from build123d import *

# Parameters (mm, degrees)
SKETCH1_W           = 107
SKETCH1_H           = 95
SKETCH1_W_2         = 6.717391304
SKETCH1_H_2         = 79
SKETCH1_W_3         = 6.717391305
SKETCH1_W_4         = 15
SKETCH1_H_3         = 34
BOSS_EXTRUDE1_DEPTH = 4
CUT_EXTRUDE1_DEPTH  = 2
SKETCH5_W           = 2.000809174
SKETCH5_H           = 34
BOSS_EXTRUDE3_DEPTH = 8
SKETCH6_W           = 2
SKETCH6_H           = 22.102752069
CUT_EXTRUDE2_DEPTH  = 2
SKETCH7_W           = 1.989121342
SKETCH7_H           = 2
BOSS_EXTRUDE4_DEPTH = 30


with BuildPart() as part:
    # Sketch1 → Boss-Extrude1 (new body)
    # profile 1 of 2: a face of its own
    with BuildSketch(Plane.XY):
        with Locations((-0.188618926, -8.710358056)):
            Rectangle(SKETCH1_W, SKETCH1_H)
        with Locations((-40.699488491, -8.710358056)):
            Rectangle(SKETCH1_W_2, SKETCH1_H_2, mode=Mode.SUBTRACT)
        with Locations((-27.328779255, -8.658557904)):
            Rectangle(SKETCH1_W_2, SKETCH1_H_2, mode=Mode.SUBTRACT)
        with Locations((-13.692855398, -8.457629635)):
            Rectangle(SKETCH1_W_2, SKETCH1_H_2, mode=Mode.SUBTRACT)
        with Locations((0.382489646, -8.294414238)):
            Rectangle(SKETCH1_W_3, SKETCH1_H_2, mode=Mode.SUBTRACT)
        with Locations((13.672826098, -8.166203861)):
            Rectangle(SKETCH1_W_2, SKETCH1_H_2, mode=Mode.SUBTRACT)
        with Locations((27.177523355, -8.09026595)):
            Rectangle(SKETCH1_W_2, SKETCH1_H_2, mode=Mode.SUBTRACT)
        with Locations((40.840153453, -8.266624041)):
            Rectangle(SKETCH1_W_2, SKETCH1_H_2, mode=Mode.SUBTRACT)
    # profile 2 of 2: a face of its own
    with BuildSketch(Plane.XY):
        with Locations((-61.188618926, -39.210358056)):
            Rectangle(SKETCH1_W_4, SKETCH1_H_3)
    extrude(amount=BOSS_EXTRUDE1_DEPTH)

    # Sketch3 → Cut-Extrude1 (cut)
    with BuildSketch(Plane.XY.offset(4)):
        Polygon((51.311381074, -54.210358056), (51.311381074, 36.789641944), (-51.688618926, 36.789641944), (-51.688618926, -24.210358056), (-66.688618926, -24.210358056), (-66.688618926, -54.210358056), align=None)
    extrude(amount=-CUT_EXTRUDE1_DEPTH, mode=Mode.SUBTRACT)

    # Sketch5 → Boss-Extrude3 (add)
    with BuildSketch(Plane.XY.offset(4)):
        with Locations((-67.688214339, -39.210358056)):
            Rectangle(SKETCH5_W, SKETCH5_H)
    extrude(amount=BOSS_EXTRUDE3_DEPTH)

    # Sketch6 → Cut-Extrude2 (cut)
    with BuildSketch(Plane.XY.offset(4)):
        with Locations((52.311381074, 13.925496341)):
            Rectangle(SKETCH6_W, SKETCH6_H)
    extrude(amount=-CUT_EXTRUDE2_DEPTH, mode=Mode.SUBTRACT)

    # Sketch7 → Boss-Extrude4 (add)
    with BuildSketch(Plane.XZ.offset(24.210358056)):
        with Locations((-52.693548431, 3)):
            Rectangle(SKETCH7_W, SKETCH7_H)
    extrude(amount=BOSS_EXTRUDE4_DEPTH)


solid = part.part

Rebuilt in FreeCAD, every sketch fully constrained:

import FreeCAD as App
import Part
import Sketcher

V = App.Vector
Q = App.Units.Quantity


def add_polygon(sketch, points):
    """Adds a closed chain of lines whose ends are joined by coincident constraints."""
    first, n = sketch.GeometryCount, len(points)
    for a, b in zip(points, points[1:] + points[:1]):
        sketch.addGeometry(Part.LineSegment(App.Vector(*a, 0), App.Vector(*b, 0)), False)
    for i in range(n):
        sketch.addConstraint(Sketcher.Constraint("Coincident", first + i, 2, first + (i + 1) % n, 1))

doc = App.newDocument("Part")
body = doc.addObject("PartDesign::Body", "Body")

# Sketch on XY plane
sketch1 = doc.addObject("Sketcher::SketchObject", "Sketch")
body.addObject(sketch1)
sketch1.AttachmentSupport = (doc.XY_Plane, [""])
sketch1.MapMode = "FlatFace"
add_polygon(sketch1, [(-54, 39), (-54, -22), (-69, -22), (-69, -56), (53, -56), (53, 39)])  # lines 0-5
add_polygon(sketch1, [(-37, -48), (-44, -48), (-44, 31), (-37, 31)])  # lines 6-9
add_polygon(sketch1, [(-24, -48), (-31, -48), (-31, 31), (-24, 31)])  # lines 10-13
add_polygon(sketch1, [(-10, -48), (-17, -48), (-17, 31), (-10, 31)])  # lines 14-17
add_polygon(sketch1, [(4, -48), (-3, -48), (-3, 31), (4, 31)])  # lines 18-21
add_polygon(sketch1, [(17, -48), (10, -48), (10, 31), (17, 31)])  # lines 22-25
add_polygon(sketch1, [(31, -48), (24, -48), (24, 31), (31, 31)])  # lines 26-29
add_polygon(sketch1, [(44, -48), (37, -48), (37, 31), (44, 31)])  # lines 30-33
sketch1.addConstraint([
    Sketcher.Constraint("Vertical", 0),
    Sketcher.Constraint("Horizontal", 1),
    Sketcher.Constraint("Vertical", 2),
    Sketcher.Constraint("Horizontal", 3),
    Sketcher.Constraint("Vertical", 4),
    Sketcher.Constraint("Horizontal", 5),
    Sketcher.Constraint("Horizontal", 6),
    Sketcher.Constraint("Vertical", 7),
    Sketcher.Constraint("Horizontal", 8),
    Sketcher.Constraint("Vertical", 9),
    Sketcher.Constraint("Horizontal", 10),
    Sketcher.Constraint("Vertical", 11),
    Sketcher.Constraint("Horizontal", 12),
    Sketcher.Constraint("Vertical", 13),
    Sketcher.Constraint("Horizontal", 14),
    Sketcher.Constraint("Vertical", 15),
    Sketcher.Constraint("Horizontal", 16),
    Sketcher.Constraint("Vertical", 17),
    Sketcher.Constraint("Horizontal", 18),
    Sketcher.Constraint("Vertical", 19),
    Sketcher.Constraint("Horizontal", 20),
    Sketcher.Constraint("Vertical", 21),
    Sketcher.Constraint("Horizontal", 22),
    Sketcher.Constraint("Vertical", 23),
    Sketcher.Constraint("Horizontal", 24),
    Sketcher.Constraint("Vertical", 25),
    Sketcher.Constraint("Horizontal", 26),
    Sketcher.Constraint("Vertical", 27),
    Sketcher.Constraint("Horizontal", 28),
    Sketcher.Constraint("Vertical", 29),
    Sketcher.Constraint("Horizontal", 30),
    Sketcher.Constraint("Vertical", 31),
    Sketcher.Constraint("Horizontal", 32),
    Sketcher.Constraint("Vertical", 33),
    Sketcher.Constraint("Equal", 8, 10),
    Sketcher.Constraint("Equal", 12, 14),
    Sketcher.Constraint("Equal", 16, 18),
    Sketcher.Constraint("Equal", 20, 22),
    Sketcher.Constraint("Equal", 24, 26),
    Sketcher.Constraint("Equal", 28, 30),
    Sketcher.Constraint("Equal", 9, 11),
    Sketcher.Constraint("Equal", 13, 15),
    Sketcher.Constraint("Equal", 17, 19),
    Sketcher.Constraint("Equal", 21, 23),
    Sketcher.Constraint("Equal", 25, 27),
    Sketcher.Constraint("Equal", 29, 31),
    Sketcher.Constraint("DistanceX", 1, 2, 1, 1, Q("15 mm")),
    Sketcher.Constraint("DistanceX", 3, 1, 3, 2, Q("122 mm")),
    Sketcher.Constraint("DistanceY", 0, 2, 0, 1, Q("61 mm")),
    Sketcher.Constraint("DistanceY", 2, 2, 2, 1, Q("34 mm")),
    Sketcher.Constraint("DistanceY", 7, 1, 7, 2, Q("79 mm")),
    Sketcher.Constraint("DistanceY", 2, 2, 6, 2, Q("8 mm")),
    Sketcher.Constraint("DistanceX", 6, 2, 6, 1, Q("6.717391 mm")),
    Sketcher.Constraint("DistanceY", 9, 2, 10, 2, Q("0.0518 mm")),
    Sketcher.Constraint("DistanceX", 7, 2, 12, 2, Q("20.088101 mm")),
    Sketcher.Constraint("DistanceX", 0, 2, -1, 1, Q("53.688619 mm")),
    Sketcher.Constraint("DistanceY", 0, 2, -1, 1, Q("22.210358 mm")),
    Sketcher.Constraint("DistanceX", 14, 2, -1, 1, Q("17.051551 mm")),
    Sketcher.Constraint("DistanceY", 14, 2, -1, 1, Q("47.95763 mm")),
    Sketcher.Constraint("DistanceX", -1, 1, 22, 2, Q("10.31413 mm")),
    Sketcher.Constraint("DistanceX", -1, 1, 28, 2, Q("30.536219 mm")),
    Sketcher.Constraint("DistanceX", -1, 1, 32, 2, Q("44.198849 mm")),
    Sketcher.Constraint("DistanceX", 9, 2, 14, 2, Q("20.289242 mm")),
    Sketcher.Constraint("DistanceX", 10, 2, 18, 2, Q("27.711269 mm")),
    Sketcher.Constraint("DistanceY", 21, 2, 22, 2, Q("0.12821 mm")),
    Sketcher.Constraint("DistanceY", 21, 2, 26, 2, Q("0.204148 mm")),
    Sketcher.Constraint("DistanceY", 30, 2, 29, 2, Q("0.176358 mm")),
    Sketcher.Constraint("DistanceY", 18, 2, -1, 1, Q("47.794414 mm")),
])
pad1 = doc.addObject("PartDesign::Pad", "Pad")
body.addObject(pad1)
pad1.Profile = sketch1
pad1.Length = 4

# Sketch on XY plane
sketch2 = doc.addObject("Sketcher::SketchObject", "Sketch001")
body.addObject(sketch2)
sketch2.AttachmentSupport = (doc.XY_Plane, [""])
sketch2.MapMode = "FlatFace"
sketch2.AttachmentOffset = App.Placement(V(0, 0, 4), App.Rotation())
add_polygon(sketch2, [(51, -54), (51, 37), (-52, 37), (-52, -24), (-67, -24), (-67, -54)])  # lines 0-5
sketch2.addConstraint([
    Sketcher.Constraint("Vertical", 0),
    Sketcher.Constraint("Horizontal", 1),
    Sketcher.Constraint("Vertical", 2),
    Sketcher.Constraint("Horizontal", 3),
    Sketcher.Constraint("Vertical", 4),
    Sketcher.Constraint("Horizontal", 5),
    Sketcher.Constraint("DistanceX", 1, 2, 1, 1, Q("103 mm")),
    Sketcher.Constraint("DistanceX", 3, 2, 3, 1, Q("15 mm")),
    Sketcher.Constraint("DistanceY", 0, 1, 0, 2, Q("91 mm")),
    Sketcher.Constraint("DistanceY", 2, 2, 2, 1, Q("61 mm")),
    Sketcher.Constraint("DistanceX", -1, 1, 0, 2, Q("51.311381 mm")),
    Sketcher.Constraint("DistanceY", -1, 1, 0, 2, Q("36.789642 mm")),
])
pocket1 = doc.addObject("PartDesign::Pocket", "Pocket")
body.addObject(pocket1)
pocket1.Profile = sketch2
pocket1.Length = 2

# Sketch on XY plane
sketch3 = doc.addObject("Sketcher::SketchObject", "Sketch002")
body.addObject(sketch3)
sketch3.AttachmentSupport = (doc.XY_Plane, [""])
sketch3.MapMode = "FlatFace"
sketch3.AttachmentOffset = App.Placement(V(0, 0, 4), App.Rotation())
add_polygon(sketch3, [(-68.7, -22.2), (-68.7, -56.2), (-66.7, -56.2), (-66.7, -22.2)])  # lines 0-3
sketch3.addConstraint([
    Sketcher.Constraint("Vertical", 0),
    Sketcher.Constraint("Horizontal", 1),
    Sketcher.Constraint("Vertical", 2),
    Sketcher.Constraint("Horizontal", 3),
    Sketcher.Constraint("DistanceY", 0, 2, 0, 1, Q("34 mm")),
    Sketcher.Constraint("DistanceX", 1, 1, 1, 2, Q("2.000809 mm")),
    Sketcher.Constraint("DistanceX", 0, 2, -1, 1, Q("68.688619 mm")),
    Sketcher.Constraint("DistanceY", 0, 2, -1, 1, Q("56.210358 mm")),
])
pad2 = doc.addObject("PartDesign::Pad", "Pad001")
body.addObject(pad2)
pad2.Profile = sketch3
pad2.Length = 8

# Sketch on XY plane
sketch4 = doc.addObject("Sketcher::SketchObject", "Sketch003")
body.addObject(sketch4)
sketch4.AttachmentSupport = (doc.XY_Plane, [""])
sketch4.MapMode = "FlatFace"
sketch4.AttachmentOffset = App.Placement(V(0, 0, 4), App.Rotation())
add_polygon(sketch4, [(51.3, 25), (51.3, 2.9), (53.3, 2.9), (53.3, 25)])  # lines 0-3
sketch4.addConstraint([
    Sketcher.Constraint("Vertical", 0),
    Sketcher.Constraint("Horizontal", 1),
    Sketcher.Constraint("Vertical", 2),
    Sketcher.Constraint("Horizontal", 3),
    Sketcher.Constraint("DistanceX", 1, 1, 1, 2, Q("2 mm")),
    Sketcher.Constraint("DistanceY", 0, 2, 0, 1, Q("22.102752 mm")),
    Sketcher.Constraint("DistanceX", -1, 1, 0, 2, Q("51.311381 mm")),
    Sketcher.Constraint("DistanceY", -1, 1, 0, 2, Q("2.87412 mm")),
])
pocket2 = doc.addObject("PartDesign::Pocket", "Pocket001")
body.addObject(pocket2)
pocket2.Profile = sketch4
pocket2.Length = 2

# Sketch on XZ plane
sketch5 = doc.addObject("Sketcher::SketchObject", "Sketch004")
body.addObject(sketch5)
sketch5.AttachmentSupport = (doc.XZ_Plane, [""])
sketch5.MapMode = "FlatFace"
sketch5.AttachmentOffset = App.Placement(V(0, 0, 24.210358), App.Rotation())
add_polygon(sketch5, [(-53.7, 4), (-53.7, 2), (-51.7, 2), (-51.7, 4)])  # lines 0-3
sketch5.addConstraint([
    Sketcher.Constraint("Vertical", 0),
    Sketcher.Constraint("Horizontal", 1),
    Sketcher.Constraint("Vertical", 2),
    Sketcher.Constraint("Horizontal", 3),
    Sketcher.Constraint("DistanceY", 0, 2, 0, 1, Q("2 mm")),
    Sketcher.Constraint("DistanceY", -1, 1, 0, 2, Q("2 mm")),
    Sketcher.Constraint("DistanceX", 1, 1, 1, 2, Q("1.989121 mm")),
    Sketcher.Constraint("DistanceX", 0, 2, -1, 1, Q("53.688109 mm")),
])
pad3 = doc.addObject("PartDesign::Pad", "Pad002")
body.addObject(pad3)
pad3.Profile = sketch5
pad3.Length = 30

doc.recompute()
